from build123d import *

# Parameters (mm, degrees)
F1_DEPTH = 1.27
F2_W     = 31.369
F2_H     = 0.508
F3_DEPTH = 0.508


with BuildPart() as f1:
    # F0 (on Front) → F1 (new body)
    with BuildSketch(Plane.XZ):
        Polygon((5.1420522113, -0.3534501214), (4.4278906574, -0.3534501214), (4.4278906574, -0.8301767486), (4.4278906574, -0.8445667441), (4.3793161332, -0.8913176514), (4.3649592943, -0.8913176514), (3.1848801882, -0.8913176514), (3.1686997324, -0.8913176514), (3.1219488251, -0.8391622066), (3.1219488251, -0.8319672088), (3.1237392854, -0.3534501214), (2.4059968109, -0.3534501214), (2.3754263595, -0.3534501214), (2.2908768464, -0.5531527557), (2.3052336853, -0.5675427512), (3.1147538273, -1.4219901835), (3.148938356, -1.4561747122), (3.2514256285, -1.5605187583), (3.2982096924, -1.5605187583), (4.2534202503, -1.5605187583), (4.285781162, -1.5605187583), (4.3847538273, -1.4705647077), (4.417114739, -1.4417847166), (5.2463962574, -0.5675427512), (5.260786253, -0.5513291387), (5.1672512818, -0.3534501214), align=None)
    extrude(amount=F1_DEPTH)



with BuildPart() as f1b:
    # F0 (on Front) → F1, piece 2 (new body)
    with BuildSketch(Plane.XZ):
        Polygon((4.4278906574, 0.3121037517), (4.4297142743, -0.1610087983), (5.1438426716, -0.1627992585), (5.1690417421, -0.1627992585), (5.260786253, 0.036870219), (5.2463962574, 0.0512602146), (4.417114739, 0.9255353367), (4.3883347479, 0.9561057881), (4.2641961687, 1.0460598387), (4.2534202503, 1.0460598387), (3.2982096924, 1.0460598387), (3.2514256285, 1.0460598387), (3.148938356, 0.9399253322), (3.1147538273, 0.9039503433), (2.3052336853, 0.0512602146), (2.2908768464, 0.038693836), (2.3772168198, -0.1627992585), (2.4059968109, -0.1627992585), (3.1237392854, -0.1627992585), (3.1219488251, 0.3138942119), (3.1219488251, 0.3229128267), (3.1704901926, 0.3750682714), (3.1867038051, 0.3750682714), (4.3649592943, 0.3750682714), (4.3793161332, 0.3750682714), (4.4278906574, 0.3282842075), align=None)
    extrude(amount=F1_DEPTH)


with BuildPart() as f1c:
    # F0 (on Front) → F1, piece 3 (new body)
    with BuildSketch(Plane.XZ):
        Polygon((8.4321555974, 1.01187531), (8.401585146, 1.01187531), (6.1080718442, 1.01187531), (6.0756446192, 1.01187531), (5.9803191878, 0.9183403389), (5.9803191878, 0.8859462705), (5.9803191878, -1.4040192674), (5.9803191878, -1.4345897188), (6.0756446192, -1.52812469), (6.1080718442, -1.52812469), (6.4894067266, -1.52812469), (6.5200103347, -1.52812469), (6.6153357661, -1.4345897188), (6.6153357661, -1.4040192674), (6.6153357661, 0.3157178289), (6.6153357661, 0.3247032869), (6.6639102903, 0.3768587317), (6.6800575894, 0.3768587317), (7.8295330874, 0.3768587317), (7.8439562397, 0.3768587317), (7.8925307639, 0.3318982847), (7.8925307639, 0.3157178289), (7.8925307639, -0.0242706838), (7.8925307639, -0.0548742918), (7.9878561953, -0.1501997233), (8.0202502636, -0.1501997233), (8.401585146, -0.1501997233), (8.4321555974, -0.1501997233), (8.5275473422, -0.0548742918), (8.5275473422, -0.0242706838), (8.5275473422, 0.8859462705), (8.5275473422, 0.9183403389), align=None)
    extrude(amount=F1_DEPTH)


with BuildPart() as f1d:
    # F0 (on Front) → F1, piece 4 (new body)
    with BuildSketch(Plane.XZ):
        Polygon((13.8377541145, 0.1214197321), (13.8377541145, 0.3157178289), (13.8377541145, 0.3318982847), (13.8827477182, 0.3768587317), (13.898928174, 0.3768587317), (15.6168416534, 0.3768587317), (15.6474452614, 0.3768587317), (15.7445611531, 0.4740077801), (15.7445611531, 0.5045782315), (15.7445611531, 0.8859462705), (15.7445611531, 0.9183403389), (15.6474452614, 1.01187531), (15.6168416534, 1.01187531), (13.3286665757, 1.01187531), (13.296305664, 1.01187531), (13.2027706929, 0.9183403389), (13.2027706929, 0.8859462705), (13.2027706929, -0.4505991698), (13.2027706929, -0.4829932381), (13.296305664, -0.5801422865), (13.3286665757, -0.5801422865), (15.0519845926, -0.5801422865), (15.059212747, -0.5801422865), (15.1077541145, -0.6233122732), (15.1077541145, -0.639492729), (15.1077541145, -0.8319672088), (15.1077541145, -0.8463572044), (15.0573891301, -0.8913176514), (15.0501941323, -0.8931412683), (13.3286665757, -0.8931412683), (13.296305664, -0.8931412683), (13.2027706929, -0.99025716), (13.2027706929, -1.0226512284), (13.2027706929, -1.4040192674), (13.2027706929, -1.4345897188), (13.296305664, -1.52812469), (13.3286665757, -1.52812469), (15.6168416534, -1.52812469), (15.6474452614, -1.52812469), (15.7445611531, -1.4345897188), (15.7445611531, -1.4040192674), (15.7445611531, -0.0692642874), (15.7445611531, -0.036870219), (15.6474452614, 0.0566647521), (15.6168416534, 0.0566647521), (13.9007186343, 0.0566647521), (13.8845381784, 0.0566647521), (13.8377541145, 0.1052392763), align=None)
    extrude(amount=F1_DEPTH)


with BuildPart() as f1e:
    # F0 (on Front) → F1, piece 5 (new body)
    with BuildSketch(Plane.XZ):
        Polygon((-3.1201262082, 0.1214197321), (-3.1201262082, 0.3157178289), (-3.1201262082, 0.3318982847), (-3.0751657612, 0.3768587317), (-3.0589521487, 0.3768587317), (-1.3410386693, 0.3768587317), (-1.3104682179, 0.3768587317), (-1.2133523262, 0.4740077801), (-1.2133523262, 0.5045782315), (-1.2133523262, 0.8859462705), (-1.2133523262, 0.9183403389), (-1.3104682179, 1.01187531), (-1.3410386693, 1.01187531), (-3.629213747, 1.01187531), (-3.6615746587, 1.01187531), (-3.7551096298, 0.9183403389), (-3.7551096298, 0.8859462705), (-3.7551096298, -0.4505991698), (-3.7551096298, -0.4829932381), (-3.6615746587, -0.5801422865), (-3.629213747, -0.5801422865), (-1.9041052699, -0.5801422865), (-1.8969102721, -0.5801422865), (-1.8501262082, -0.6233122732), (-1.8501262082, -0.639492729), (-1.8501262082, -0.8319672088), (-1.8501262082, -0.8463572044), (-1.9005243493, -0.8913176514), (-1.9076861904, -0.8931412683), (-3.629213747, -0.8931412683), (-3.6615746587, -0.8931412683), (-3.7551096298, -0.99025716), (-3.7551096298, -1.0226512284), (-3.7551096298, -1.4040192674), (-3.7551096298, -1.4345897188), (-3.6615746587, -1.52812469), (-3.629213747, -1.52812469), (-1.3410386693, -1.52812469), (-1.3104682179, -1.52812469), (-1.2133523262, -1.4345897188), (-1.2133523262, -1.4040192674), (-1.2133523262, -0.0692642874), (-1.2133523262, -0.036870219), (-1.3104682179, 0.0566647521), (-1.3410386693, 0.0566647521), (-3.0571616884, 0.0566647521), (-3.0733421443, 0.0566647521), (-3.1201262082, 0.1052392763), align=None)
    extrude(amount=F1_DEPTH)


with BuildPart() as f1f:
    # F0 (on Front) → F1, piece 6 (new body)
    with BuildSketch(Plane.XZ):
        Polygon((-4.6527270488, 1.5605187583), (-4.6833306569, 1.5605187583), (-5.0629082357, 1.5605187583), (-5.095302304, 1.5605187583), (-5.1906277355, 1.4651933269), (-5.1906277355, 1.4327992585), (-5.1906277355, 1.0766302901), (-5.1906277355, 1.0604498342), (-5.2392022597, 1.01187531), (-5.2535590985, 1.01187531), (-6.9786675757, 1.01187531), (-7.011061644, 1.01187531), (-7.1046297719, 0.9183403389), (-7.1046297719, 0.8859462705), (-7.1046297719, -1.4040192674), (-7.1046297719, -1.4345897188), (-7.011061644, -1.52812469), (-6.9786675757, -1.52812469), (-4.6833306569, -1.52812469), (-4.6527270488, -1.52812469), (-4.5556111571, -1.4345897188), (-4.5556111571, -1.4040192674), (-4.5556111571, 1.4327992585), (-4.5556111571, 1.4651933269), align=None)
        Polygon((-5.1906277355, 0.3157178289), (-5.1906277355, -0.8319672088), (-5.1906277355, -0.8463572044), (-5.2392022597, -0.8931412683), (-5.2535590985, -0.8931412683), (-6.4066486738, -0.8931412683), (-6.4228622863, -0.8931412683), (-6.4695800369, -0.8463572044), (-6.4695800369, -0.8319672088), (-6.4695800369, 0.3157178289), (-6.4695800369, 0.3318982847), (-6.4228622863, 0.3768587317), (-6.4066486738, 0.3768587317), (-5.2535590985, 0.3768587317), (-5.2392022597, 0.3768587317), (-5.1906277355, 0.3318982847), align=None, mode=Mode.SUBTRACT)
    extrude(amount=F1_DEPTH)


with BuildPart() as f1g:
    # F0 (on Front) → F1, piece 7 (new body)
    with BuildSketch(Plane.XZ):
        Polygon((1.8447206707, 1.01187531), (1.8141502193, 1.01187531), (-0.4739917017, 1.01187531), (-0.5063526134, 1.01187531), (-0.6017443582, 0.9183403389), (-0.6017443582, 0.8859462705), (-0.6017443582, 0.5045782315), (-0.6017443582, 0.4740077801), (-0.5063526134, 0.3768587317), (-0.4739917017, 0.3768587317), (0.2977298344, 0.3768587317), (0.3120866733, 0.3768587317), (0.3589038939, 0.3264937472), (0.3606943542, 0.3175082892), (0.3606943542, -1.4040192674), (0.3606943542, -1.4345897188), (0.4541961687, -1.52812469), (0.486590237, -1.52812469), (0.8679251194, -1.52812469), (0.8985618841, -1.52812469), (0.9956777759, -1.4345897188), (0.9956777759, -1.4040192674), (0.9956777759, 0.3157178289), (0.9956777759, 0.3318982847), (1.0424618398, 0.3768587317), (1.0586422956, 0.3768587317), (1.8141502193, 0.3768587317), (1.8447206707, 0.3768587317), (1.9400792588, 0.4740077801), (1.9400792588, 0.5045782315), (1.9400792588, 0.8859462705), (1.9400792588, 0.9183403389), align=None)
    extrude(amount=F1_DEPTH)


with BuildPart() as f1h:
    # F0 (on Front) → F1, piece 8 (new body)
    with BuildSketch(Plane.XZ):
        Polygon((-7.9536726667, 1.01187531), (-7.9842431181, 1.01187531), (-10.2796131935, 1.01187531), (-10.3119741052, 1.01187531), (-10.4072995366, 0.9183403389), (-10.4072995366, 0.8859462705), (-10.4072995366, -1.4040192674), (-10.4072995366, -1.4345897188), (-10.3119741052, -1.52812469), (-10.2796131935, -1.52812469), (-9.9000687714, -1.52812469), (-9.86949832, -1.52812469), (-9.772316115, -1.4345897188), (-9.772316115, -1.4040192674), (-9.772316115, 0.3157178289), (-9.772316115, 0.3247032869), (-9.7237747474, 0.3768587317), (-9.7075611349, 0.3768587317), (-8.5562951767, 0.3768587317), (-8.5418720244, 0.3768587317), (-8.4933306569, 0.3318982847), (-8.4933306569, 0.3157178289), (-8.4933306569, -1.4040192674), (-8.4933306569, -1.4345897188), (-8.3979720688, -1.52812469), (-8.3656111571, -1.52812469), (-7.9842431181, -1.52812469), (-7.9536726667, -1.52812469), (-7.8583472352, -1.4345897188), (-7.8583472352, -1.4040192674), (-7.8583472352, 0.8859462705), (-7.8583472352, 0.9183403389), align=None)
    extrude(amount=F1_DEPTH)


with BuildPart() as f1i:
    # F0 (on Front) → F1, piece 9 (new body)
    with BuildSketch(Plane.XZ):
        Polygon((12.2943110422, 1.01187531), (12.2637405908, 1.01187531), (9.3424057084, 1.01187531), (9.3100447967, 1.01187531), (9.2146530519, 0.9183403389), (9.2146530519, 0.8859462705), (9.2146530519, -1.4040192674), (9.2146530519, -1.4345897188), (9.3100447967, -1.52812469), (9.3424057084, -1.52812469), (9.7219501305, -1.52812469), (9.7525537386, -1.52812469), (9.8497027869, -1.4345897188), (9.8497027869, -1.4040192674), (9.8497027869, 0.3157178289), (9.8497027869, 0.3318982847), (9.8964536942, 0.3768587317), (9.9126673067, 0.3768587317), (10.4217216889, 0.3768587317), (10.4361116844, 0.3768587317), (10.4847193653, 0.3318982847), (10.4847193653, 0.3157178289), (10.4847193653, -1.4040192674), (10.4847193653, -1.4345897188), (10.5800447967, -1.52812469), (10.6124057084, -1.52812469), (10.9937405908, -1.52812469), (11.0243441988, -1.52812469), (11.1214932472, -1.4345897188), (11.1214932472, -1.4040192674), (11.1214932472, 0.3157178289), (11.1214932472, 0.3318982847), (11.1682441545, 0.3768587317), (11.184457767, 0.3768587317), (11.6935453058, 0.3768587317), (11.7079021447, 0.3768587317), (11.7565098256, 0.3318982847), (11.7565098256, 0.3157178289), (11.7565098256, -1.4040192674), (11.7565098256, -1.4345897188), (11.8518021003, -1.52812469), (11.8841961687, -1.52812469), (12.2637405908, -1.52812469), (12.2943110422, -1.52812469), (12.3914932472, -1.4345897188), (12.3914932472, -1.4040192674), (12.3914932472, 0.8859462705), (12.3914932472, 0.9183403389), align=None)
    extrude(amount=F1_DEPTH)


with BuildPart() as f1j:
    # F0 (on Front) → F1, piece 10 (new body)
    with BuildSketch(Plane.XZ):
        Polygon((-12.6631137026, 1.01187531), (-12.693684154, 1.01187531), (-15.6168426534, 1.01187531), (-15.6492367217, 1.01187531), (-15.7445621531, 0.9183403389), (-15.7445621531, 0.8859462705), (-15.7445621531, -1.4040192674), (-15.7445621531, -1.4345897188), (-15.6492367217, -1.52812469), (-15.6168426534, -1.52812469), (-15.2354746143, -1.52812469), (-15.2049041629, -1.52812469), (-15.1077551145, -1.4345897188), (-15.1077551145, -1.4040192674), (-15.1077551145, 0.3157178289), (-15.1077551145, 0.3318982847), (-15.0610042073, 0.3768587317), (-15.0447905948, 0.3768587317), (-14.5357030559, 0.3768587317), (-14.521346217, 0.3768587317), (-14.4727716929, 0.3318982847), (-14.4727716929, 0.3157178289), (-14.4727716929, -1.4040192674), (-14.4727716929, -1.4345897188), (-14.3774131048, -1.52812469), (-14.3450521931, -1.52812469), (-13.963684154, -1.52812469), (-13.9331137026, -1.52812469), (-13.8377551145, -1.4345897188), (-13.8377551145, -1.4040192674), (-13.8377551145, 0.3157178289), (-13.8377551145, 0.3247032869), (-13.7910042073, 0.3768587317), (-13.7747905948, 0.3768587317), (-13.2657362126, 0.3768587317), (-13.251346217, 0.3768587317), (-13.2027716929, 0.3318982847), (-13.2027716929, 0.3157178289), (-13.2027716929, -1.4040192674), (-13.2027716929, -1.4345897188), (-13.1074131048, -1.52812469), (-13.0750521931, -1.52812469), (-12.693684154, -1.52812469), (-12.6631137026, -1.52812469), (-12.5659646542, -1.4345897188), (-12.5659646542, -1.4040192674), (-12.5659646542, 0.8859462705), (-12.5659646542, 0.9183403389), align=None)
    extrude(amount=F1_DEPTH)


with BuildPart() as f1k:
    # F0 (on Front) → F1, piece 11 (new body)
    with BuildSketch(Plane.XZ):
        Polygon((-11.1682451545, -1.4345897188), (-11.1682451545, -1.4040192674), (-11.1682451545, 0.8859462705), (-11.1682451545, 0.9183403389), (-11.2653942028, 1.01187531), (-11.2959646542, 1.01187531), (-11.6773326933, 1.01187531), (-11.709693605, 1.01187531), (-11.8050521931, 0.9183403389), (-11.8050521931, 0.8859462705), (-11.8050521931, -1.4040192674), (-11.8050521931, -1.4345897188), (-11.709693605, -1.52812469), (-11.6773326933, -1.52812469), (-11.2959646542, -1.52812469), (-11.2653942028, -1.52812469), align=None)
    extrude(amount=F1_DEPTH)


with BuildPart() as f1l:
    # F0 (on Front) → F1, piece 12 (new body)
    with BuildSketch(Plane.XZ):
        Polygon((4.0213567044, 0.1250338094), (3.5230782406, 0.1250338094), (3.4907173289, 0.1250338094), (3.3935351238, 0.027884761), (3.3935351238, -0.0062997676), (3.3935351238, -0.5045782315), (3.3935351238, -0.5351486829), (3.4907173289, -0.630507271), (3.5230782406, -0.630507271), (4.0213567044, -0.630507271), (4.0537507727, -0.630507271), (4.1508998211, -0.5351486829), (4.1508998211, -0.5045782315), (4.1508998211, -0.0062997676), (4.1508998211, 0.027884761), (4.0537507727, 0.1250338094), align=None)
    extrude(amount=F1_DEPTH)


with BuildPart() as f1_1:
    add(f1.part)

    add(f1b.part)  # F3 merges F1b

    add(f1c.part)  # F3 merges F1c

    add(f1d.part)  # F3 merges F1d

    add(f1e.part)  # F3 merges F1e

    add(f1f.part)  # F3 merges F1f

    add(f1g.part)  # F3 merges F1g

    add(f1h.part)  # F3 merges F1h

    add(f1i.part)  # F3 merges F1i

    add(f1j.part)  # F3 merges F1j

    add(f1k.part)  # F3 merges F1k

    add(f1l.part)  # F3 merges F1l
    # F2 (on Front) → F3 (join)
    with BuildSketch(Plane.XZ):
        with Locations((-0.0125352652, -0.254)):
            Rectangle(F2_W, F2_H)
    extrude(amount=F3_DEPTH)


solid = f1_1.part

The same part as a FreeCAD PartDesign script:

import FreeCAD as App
import Part
import Sketcher
Q = App.Units.Quantity


def add_polygon(sketch, points):
    """Adds a closed chain of lines whose ends are joined by coincident constraints."""
    first, n = sketch.GeometryCount, len(points)
    for a, b in zip(points, points[1:] + points[:1]):
        sketch.addGeometry(Part.LineSegment(App.Vector(*a, 0), App.Vector(*b, 0)), False)
    for i in range(n):
        sketch.addConstraint(Sketcher.Constraint("Coincident", first + i, 2, first + (i + 1) % n, 1))

doc = App.newDocument("Part")
body = doc.addObject("PartDesign::Body", "Body")

# Sketch on XZ plane
sketch1 = body.newObject("Sketcher::SketchObject", "Sketch")
sketch1.AttachmentSupport = (doc.getObject("XZ_Plane"), [""])
sketch1.MapMode = "FlatFace"
add_polygon(sketch1, [(4.428, -0.353), (4.428, -0.845), (4.379, -0.891), (3.169, -0.891), (3.122, -0.839), (3.122, -0.832), (3.124, -0.353), (2.375, -0.353), (2.291, -0.553), (2.305, -0.568), (3.115, -1.422), (3.149, -1.456), (3.251, -1.561), (4.286, -1.561), (4.385, -1.471), (4.417, -1.442), (5.246, -0.568), (5.261, -0.551), (5.167, -0.353)])  # lines 0-18
sketch1.addConstraint([
    Sketcher.Constraint("Vertical", 0),
    Sketcher.Constraint("Horizontal", 2),
    Sketcher.Constraint("Vertical", 4),
    Sketcher.Constraint("Horizontal", 6),
    Sketcher.Constraint("Horizontal", 12),
    Sketcher.Constraint("Horizontal", 18),
    Sketcher.Constraint("Horizontal", 8, 2, 15, 2),
    Sketcher.Constraint("Horizontal", 6, 2, 17, 2),
    Sketcher.Constraint("Angle", 10, Q("-45 deg")),
    Sketcher.Constraint("DistanceY", 11, 2, 3, 2, Q("0.0283999 in")),
    Sketcher.Constraint("DistanceX", 18, 2, 18, 1, 0.739361),
    Sketcher.Constraint("DistanceX", -1, 1, 2, 2, 3.1687),
    Sketcher.Constraint("DistanceY", 0, 2, 4, 2, 0.0126),
    Sketcher.Constraint("DistanceX", 5, 2, 10, 2, 0.025199),
    Sketcher.Constraint("DistanceY", 11, 2, 2, 2, 0.669201),
    Sketcher.Constraint("DistanceX", 1, 2, 14, 2, 0.037799),
    Sketcher.Constraint("Distance", 3, 0.070042),
    Sketcher.Constraint("Distance", 5, 0.47852),
    Sketcher.Constraint("Distance", 9, 1.177032),
    Sketcher.Constraint("Distance", 16, 0.021678),
    Sketcher.Constraint("Distance", 17, 0.218872),
    Sketcher.Constraint("DistanceX", 2, 2, 2, 1, 1.210616),
    Sketcher.Constraint("DistanceX", 6, 2, 6, 1, 0.748313),
    Sketcher.Constraint("DistanceX", 12, 1, 12, 2, 1.034356),
    Sketcher.Constraint("DistanceY", 4, 1, 4, 2, 0.007195),
    Sketcher.Constraint("DistanceX", -1, 1, 0, 2, 4.427891),
    Sketcher.Constraint("DistanceX", -1, 1, 5, 2, 3.123739),
    Sketcher.Constraint("DistanceY", 5, 2, -1, 1, 0.35345),
    Sketcher.Constraint("DistanceY", 9, 2, -1, 1, 1.42199),
    Sketcher.Constraint("DistanceX", -1, 1, 12, 2, 4.285781),
    Sketcher.Constraint("DistanceY", 16, 2, -1, 1, 0.551329),
    Sketcher.Constraint("DistanceX", 7, 2, 6, 2, 0.08455),
    Sketcher.Constraint("DistanceY", 3, 2, 7, 2, 0.286009),
    Sketcher.Constraint("DistanceY", 8, 2, 7, 2, 0.01439),
    Sketcher.Constraint("DistanceX", 9, 2, 11, 2, 0.136672),
    Sketcher.Constraint("DistanceX", 11, 2, 13, 2, 1.133328),
    Sketcher.Constraint("DistanceY", 13, 2, 10, 2, 0.01439),
    Sketcher.Constraint("DistanceY", 13, 2, 14, 2, 0.02878),
])
pad1 = body.newObject("PartDesign::Pad", "Pad")
pad1.Profile = sketch1
pad1.Length = Q("0.05 in")
body2 = doc.addObject("PartDesign::Body", "Body001")

# Sketch on XZ plane
sketch2 = body2.newObject("Sketcher::SketchObject", "Sketch001")
sketch2.AttachmentSupport = (doc.getObject("XZ_Plane001"), [""])
sketch2.MapMode = "FlatFace"
add_polygon(sketch2, [(4.428, 0.312), (4.43, -0.161), (5.144, -0.163), (5.169, -0.163), (5.261, 0.037), (5.246, 0.051), (4.417, 0.926), (4.388, 0.956), (4.264, 1.046), (3.251, 1.046), (3.149, 0.94), (3.115, 0.904), (2.305, 0.051), (2.291, 0.039), (2.377, -0.163), (3.124, -0.163), (3.122, 0.314), (3.122, 0.323), (3.17, 0.375), (4.379, 0.375), (4.428, 0.328)])  # lines 0-20
sketch2.addConstraint([
    Sketcher.Constraint("Horizontal", 2),
    Sketcher.Constraint("Horizontal", 8),
    Sketcher.Constraint("Horizontal", 14),
    Sketcher.Constraint("Vertical", 16),
    Sketcher.Constraint("Horizontal", 18),
    Sketcher.Constraint("Vertical", 20),
    Sketcher.Constraint("Horizontal", 4, 2, 11, 2),
    Sketcher.Constraint("Horizontal", 2, 2, 13, 2),
    Sketcher.Constraint("Angle", 4, Q("135 deg")),
    Sketcher.Constraint("DistanceX", 2, 1, 2, 2, 0.025199),
    Sketcher.Constraint("DistanceX", 8, 2, 8, 1, 1.012771),
    Sketcher.Constraint("DistanceY", 16, 1, 16, 2, 0.009019),
    Sketcher.Constraint("DistanceY", 20, 2, 20, 1, 0.01618),
    Sketcher.Constraint("DistanceY", 1, 2, -1, 1, 0.162799),
    Sketcher.Constraint("DistanceX", 5, 2, 0, 2, 0.0126),
    Sketcher.Constraint("DistanceX", 7, 2, 4, 2, 0.9822),
    Sketcher.Constraint("DistanceY", 4, 2, 7, 2, 0.9948),
    Sketcher.Constraint("DistanceX", 14, 2, 9, 2, 0.025199),
    Sketcher.Constraint("DistanceX", 18, 2, 0, 2, 0.050398),
    Sketcher.Constraint("Distance", 1, 0.714131),
    Sketcher.Constraint("Distance", 3, 0.219738),
    Sketcher.Constraint("Distance", 4, 0.020351),
    Sketcher.Constraint("Distance", 9, 0.14754),
    Sketcher.Constraint("Distance", 12, 0.01908),
    Sketcher.Constraint("Distance", 17, 0.071249),
    Sketcher.Constraint("Distance", 19, 0.067441),
    Sketcher.Constraint("DistanceX", 14, 1, 14, 2, 0.746522),
    Sketcher.Constraint("DistanceX", 18, 1, 18, 2, 1.208826),
    Sketcher.Constraint("DistanceY", 0, 2, -1, 1, 0.161009),
    Sketcher.Constraint("DistanceX", -1, 1, 2, 2, 5.169042),
    Sketcher.Constraint("DistanceY", -1, 1, 3, 2, 0.03687),
    Sketcher.Constraint("DistanceX", -1, 1, 9, 2, 3.148938),
    Sketcher.Constraint("DistanceY", -1, 1, 10, 2, 0.90395),
    Sketcher.Constraint("DistanceX", -1, 1, 15, 2, 3.121949),
    Sketcher.Constraint("DistanceY", -1, 1, 17, 2, 0.375068),
    Sketcher.Constraint("DistanceX", -1, 1, 19, 2, 4.427891),
    Sketcher.Constraint("DistanceX", 6, 2, 5, 2, 0.02878),
    Sketcher.Constraint("DistanceY", 5, 2, 6, 2, 0.03057),
    Sketcher.Constraint("DistanceY", 9, 2, 6, 2, 0.01618),
    Sketcher.Constraint("DistanceX", 10, 2, 8, 2, 0.136672),
    Sketcher.Constraint("DistanceX", 11, 2, 10, 2, 0.80952),
    Sketcher.Constraint("DistanceX", 12, 2, 9, 2, 0.858062),
])
pad2 = body2.newObject("PartDesign::Pad", "Pad001")
pad2.Profile = sketch2
pad2.Length = Q("0.05 in")
body3 = doc.addObject("PartDesign::Body", "Body002")

# Sketch on XZ plane
sketch3 = body3.newObject("Sketcher::SketchObject", "Sketch002")
sketch3.AttachmentSupport = (doc.getObject("XZ_Plane002"), [""])
sketch3.MapMode = "FlatFace"
add_polygon(sketch3, [(8.43, 1.01), (6.08, 1.01), (5.98, 0.92), (5.98, -1.43), (6.08, -1.53), (6.52, -1.53), (6.62, -1.43), (6.62, 0.32), (6.66, 0.38), (7.84, 0.38), (7.89, 0.33), (7.89, -0.05), (7.99, -0.15), (8.43, -0.15), (8.53, -0.05), (8.53, 0.92)])  # lines 0-15
sketch3.addConstraint([
    Sketcher.Constraint("Horizontal", 0),
    Sketcher.Constraint("Vertical", 2),
    Sketcher.Constraint("Horizontal", 4),
    Sketcher.Constraint("Vertical", 6),
    Sketcher.Constraint("Horizontal", 8),
    Sketcher.Constraint("Vertical", 10),
    Sketcher.Constraint("Horizontal", 12),
    Sketcher.Constraint("Vertical", 14),
    Sketcher.Constraint("Parallel", 1, 5),
    Sketcher.Constraint("Horizontal", 2, 2, 5, 2),
    Sketcher.Constraint("Horizontal", 10, 2, 13, 2),
    Sketcher.Constraint("Horizontal", 1, 2, 14, 2),
    Sketcher.Constraint("Vertical", 0, 2, 3, 2),
    Sketcher.Constraint("Vertical", 12, 2, 15, 2),
    Sketcher.Constraint("Equal", 1, 3),
    Sketcher.Constraint("Angle", 11, Q("-45 deg")),
    Sketcher.Constraint("DistanceY", 3, 2, 0, 2, Q("0.1 in")),
    Sketcher.Constraint("DistanceX", 12, 1, 12, 2, 0.444299),
    Sketcher.Constraint("DistanceX", 0, 2, 0, 1, 2.356511),
    Sketcher.Constraint("DistanceY", 2, 2, 2, 1, 2.35293),
    Sketcher.Constraint("DistanceY", -1, 1, 9, 2, 0.331898),
    Sketcher.Constraint("DistanceY", 11, 2, -1, 1, 0.1502),
    Sketcher.Constraint("DistanceX", 4, 2, 7, 2, 0.1439),
    Sketcher.Constraint("DistanceX", 8, 2, 11, 2, 0.1439),
    Sketcher.Constraint("Distance", 1, 0.13355),
    Sketcher.Constraint("Distance", 7, 0.071272),
    Sketcher.Constraint("Distance", 9, 0.066189),
    Sketcher.Constraint("Distance", 11, 0.134811),
    Sketcher.Constraint("DistanceX", 4, 1, 4, 2, 0.444366),
    Sketcher.Constraint("DistanceY", 6, 1, 6, 2, 1.759293),
    Sketcher.Constraint("DistanceX", -1, 1, 1, 2, 5.980319),
    Sketcher.Constraint("DistanceX", 12, 2, 13, 2, 0.095392),
])
pad3 = body3.newObject("PartDesign::Pad", "Pad002")
pad3.Profile = sketch3
pad3.Length = Q("0.05 in")
body4 = doc.addObject("PartDesign::Body", "Body003")

# Sketch on XZ plane
sketch4 = body4.newObject("Sketcher::SketchObject", "Sketch003")
sketch4.AttachmentSupport = (doc.getObject("XZ_Plane003"), [""])
sketch4.MapMode = "FlatFace"
add_polygon(sketch4, [(13.838, 0.332), (13.883, 0.377), (15.647, 0.377), (15.745, 0.474), (15.745, 0.918), (15.647, 1.012), (13.296, 1.012), (13.203, 0.918), (13.203, -0.483), (13.296, -0.58), (15.059, -0.58), (15.108, -0.623), (15.108, -0.846), (15.057, -0.891), (15.05, -0.893), (13.296, -0.893), (13.203, -0.99), (13.203, -1.435), (13.296, -1.528), (15.647, -1.528), (15.745, -1.435), (15.745, -0.037), (15.647, 0.057), (13.885, 0.057), (13.838, 0.105)])  # lines 0-24
sketch4.addConstraint([
    Sketcher.Constraint("Horizontal", 1),
    Sketcher.Constraint("Vertical", 3),
    Sketcher.Constraint("Horizontal", 5),
    Sketcher.Constraint("Vertical", 7),
    Sketcher.Constraint("Horizontal", 9),
    Sketcher.Constraint("Vertical", 11),
    Sketcher.Constraint("Horizontal", 14),
    Sketcher.Constraint("Vertical", 16),
    Sketcher.Constraint("Horizontal", 18),
    Sketcher.Constraint("Vertical", 20),
    Sketcher.Constraint("Horizontal", 22),
    Sketcher.Constraint("Vertical", 24),
    Sketcher.Constraint("Perpendicular", 4, 15),
    Sketcher.Constraint("Perpendicular", 6, 17),
    Sketcher.Constraint("Perpendicular", 15, 21),
    Sketcher.Constraint("Horizontal", 3, 2, 6, 2),
    Sketcher.Constraint("Horizontal", 16, 2, 19, 2),
    Sketcher.Constraint("Vertical", 1, 2, 4, 2),
    Sketcher.Constraint("Vertical", 5, 2, 8, 2),
    Sketcher.Constraint("Vertical", 8, 2, 14, 2),
    Sketcher.Constraint("Vertical", 7, 2, 15, 2),
    Sketcher.Constraint("Vertical", 14, 2, 17, 2),
    Sketcher.Constraint("Vertical", 4, 2, 18, 2),
    Sketcher.Constraint("Vertical", 3, 2, 19, 2),
    Sketcher.Constraint("Vertical", 18, 2, 21, 2),
    Sketcher.Constraint("Equal", 9, 22),
    Sketcher.Constraint("Equal", 3, 16),
    Sketcher.Constraint("Equal", 4, 15),
    Sketcher.Constraint("DistanceY", 13, 2, 1, 2, Q("0.05 in")),
    Sketcher.Constraint("DistanceX", 5, 2, 5, 1, 2.35114),
    Sketcher.Constraint("DistanceX", 14, 2, 14, 1, 1.753888),
    Sketcher.Constraint("DistanceY", 20, 1, 20, 2, 1.39772),
    Sketcher.Constraint("DistanceY", 24, 1, 24, 2, 0.226659),
    Sketcher.Constraint("DistanceY", -1, 1, 24, 2, 0.331898),
    Sketcher.Constraint("DistanceY", 7, 2, 2, 2, 0.957001),
    Sketcher.Constraint("DistanceY", 8, 2, 0, 2, 0.957001),
    Sketcher.Constraint("DistanceY", 23, 2, 6, 2, 0.813101),
    Sketcher.Constraint("Distance", 6, 0.132278),
    Sketcher.Constraint("Distance", 8, 0.134858),
    Sketcher.Constraint("Distance", 10, 0.064961),
    Sketcher.Constraint("Distance", 23, 0.067441),
    Sketcher.Constraint("DistanceX", 1, 1, 1, 2, 1.764698),
    Sketcher.Constraint("DistanceX", 9, 1, 9, 2, 1.762907),
    Sketcher.Constraint("DistanceY", 3, 1, 3, 2, 0.444333),
    Sketcher.Constraint("DistanceY", 11, 2, 11, 1, 0.223045),
    Sketcher.Constraint("DistanceX", -1, 1, 2, 2, 15.744561),
    Sketcher.Constraint("DistanceX", -1, 1, 6, 2, 13.202771),
    Sketcher.Constraint("DistanceX", -1, 1, 12, 2, 15.057389),
    Sketcher.Constraint("DistanceX", 9, 2, 10, 2, 0.048541),
    Sketcher.Constraint("DistanceY", 12, 2, 11, 2, 0.04496),
])
pad4 = body4.newObject("PartDesign::Pad", "Pad003")
pad4.Profile = sketch4
pad4.Length = Q("0.05 in")
body5 = doc.addObject("PartDesign::Body", "Body004")

# Sketch on XZ plane
sketch5 = body5.newObject("Sketcher::SketchObject", "Sketch004")
sketch5.AttachmentSupport = (doc.getObject("XZ_Plane004"), [""])
sketch5.MapMode = "FlatFace"
add_polygon(sketch5, [(-3.12, 0.332), (-3.075, 0.377), (-1.31, 0.377), (-1.213, 0.474), (-1.213, 0.918), (-1.31, 1.012), (-3.662, 1.012), (-3.755, 0.918), (-3.755, -0.483), (-3.662, -0.58), (-1.897, -0.58), (-1.85, -0.623), (-1.85, -0.846), (-1.901, -0.891), (-1.908, -0.893), (-3.662, -0.893), (-3.755, -0.99), (-3.755, -1.435), (-3.662, -1.528), (-1.31, -1.528), (-1.213, -1.435), (-1.213, -0.037), (-1.31, 0.057), (-3.073, 0.057), (-3.12, 0.105)])  # lines 0-24
sketch5.addConstraint([
    Sketcher.Constraint("Horizontal", 1),
    Sketcher.Constraint("Vertical", 3),
    Sketcher.Constraint("Horizontal", 5),
    Sketcher.Constraint("Vertical", 7),
    Sketcher.Constraint("Horizontal", 9),
    Sketcher.Constraint("Vertical", 11),
    Sketcher.Constraint("Horizontal", 14),
    Sketcher.Constraint("Vertical", 16),
    Sketcher.Constraint("Horizontal", 18),
    Sketcher.Constraint("Vertical", 20),
    Sketcher.Constraint("Horizontal", 22),
    Sketcher.Constraint("Vertical", 24),
    Sketcher.Constraint("Parallel", 0, 6),
    Sketcher.Constraint("Perpendicular", 4, 15),
    Sketcher.Constraint("Perpendicular", 6, 17),
    Sketcher.Constraint("Perpendicular", 15, 21),
    Sketcher.Constraint("Horizontal", 3, 2, 6, 2),
    Sketcher.Constraint("Horizontal", 16, 2, 19, 2),
    Sketcher.Constraint("Vertical", 1, 2, 4, 2),
    Sketcher.Constraint("Vertical", 5, 2, 8, 2),
    Sketcher.Constraint("Vertical", 8, 2, 14, 2),
    Sketcher.Constraint("Vertical", 7, 2, 15, 2),
    Sketcher.Constraint("Vertical", 14, 2, 17, 2),
    Sketcher.Constraint("Vertical", 4, 2, 18, 2),
    Sketcher.Constraint("Vertical", 3, 2, 19, 2),
    Sketcher.Constraint("Vertical", 18, 2, 21, 2),
    Sketcher.Constraint("Equal", 3, 16),
    Sketcher.Constraint("Equal", 4, 15),
    Sketcher.Constraint("DistanceY", 13, 2, 1, 2, Q("0.05 in")),
    Sketcher.Constraint("DistanceX", 14, 2, 14, 1, 1.753888),
    Sketcher.Constraint("DistanceY", 20, 1, 20, 2, 1.39772),
    Sketcher.Constraint("DistanceY", 24, 1, 24, 2, 0.226659),
    Sketcher.Constraint("DistanceY", -1, 1, 24, 2, 0.331898),
    Sketcher.Constraint("DistanceY", 7, 2, 2, 2, 0.957001),
    Sketcher.Constraint("DistanceY", 8, 2, 0, 2, 0.957001),
    Sketcher.Constraint("DistanceX", 12, 2, 11, 2, 0.050398),
    Sketcher.Constraint("DistanceY", 23, 2, 6, 2, 0.813101),
    Sketcher.Constraint("Distance", 6, 0.132278),
    Sketcher.Constraint("Distance", 8, 0.134858),
    Sketcher.Constraint("Distance", 10, 0.063658),
    Sketcher.Constraint("Distance", 12, 0.067538),
    Sketcher.Constraint("Distance", 13, 0.00739),
    Sketcher.Constraint("Distance", 23, 0.067441),
    Sketcher.Constraint("DistanceX", 1, 1, 1, 2, 1.764698),
    Sketcher.Constraint("DistanceX", 5, 2, 5, 1, 2.351106),
    Sketcher.Constraint("DistanceX", 9, 1, 9, 2, 1.764664),
    Sketcher.Constraint("DistanceX", 22, 2, 22, 1, 1.762874),
    Sketcher.Constraint("DistanceY", 3, 1, 3, 2, 0.444333),
    Sketcher.Constraint("DistanceY", 11, 2, 11, 1, 0.223045),
    Sketcher.Constraint("DistanceX", 1, 2, -1, 1, 1.310468),
])
pad5 = body5.newObject("PartDesign::Pad", "Pad004")
pad5.Profile = sketch5
pad5.Length = Q("0.05 in")
body6 = doc.addObject("PartDesign::Body", "Body005")

# Sketch on XZ plane
sketch6 = body6.newObject("Sketcher::SketchObject", "Sketch005")
sketch6.AttachmentSupport = (doc.getObject("XZ_Plane005"), [""])
sketch6.MapMode = "FlatFace"
add_polygon(sketch6, [(-4.65, 1.56), (-5.1, 1.56), (-5.19, 1.47), (-5.19, 1.06), (-5.24, 1.01), (-7.01, 1.01), (-7.1, 0.92), (-7.1, -1.43), (-7.01, -1.53), (-4.65, -1.53), (-4.56, -1.43), (-4.56, 1.47)])  # lines 0-11
add_polygon(sketch6, [(-5.19, 0.33), (-5.19, -0.85), (-5.24, -0.89), (-6.42, -0.89), (-6.47, -0.85), (-6.47, 0.33), (-6.42, 0.38), (-5.24, 0.38)])  # lines 12-19
sketch6.addConstraint([
    Sketcher.Constraint("Horizontal", 0),
    Sketcher.Constraint("Vertical", 2),
    Sketcher.Constraint("Horizontal", 4),
    Sketcher.Constraint("Vertical", 6),
    Sketcher.Constraint("Horizontal", 8),
    Sketcher.Constraint("Vertical", 10),
    Sketcher.Constraint("Vertical", 12),
    Sketcher.Constraint("Horizontal", 14),
    Sketcher.Constraint("Vertical", 16),
    Sketcher.Constraint("Horizontal", 18),
    Sketcher.Constraint("Parallel", 1, 3),
    Sketcher.Constraint("Horizontal", 6, 2, 9, 2),
    Sketcher.Constraint("Horizontal", 1, 2, 10, 2),
    Sketcher.Constraint("Horizontal", 12, 2, 15, 2),
    Sketcher.Constraint("Horizontal", 16, 2, 19, 2),
    Sketcher.Constraint("Vertical", 4, 2, 7, 2),
    Sketcher.Constraint("Vertical", 8, 2, 11, 2),
    Sketcher.Constraint("Vertical", 2, 2, 12, 2),
    Sketcher.Constraint("Vertical", 3, 2, 13, 2),
    Sketcher.Constraint("Vertical", 14, 2, 17, 2),
    Sketcher.Constraint("Vertical", 13, 2, 18, 2),
    Sketcher.Constraint("Equal", 5, 7),
    Sketcher.Constraint("Angle", 1, Q("-135 deg")),
    Sketcher.Constraint("DistanceY", 7, 2, 4, 2, Q("0.1 in")),
    Sketcher.Constraint("DistanceY", 14, 2, 17, 2, Q("0.05 in")),
    Sketcher.Constraint("DistanceY", 3, 2, 0, 2, Q("0.0216001 in")),
    Sketcher.Constraint("Distance", 5, 0.132302),
    Sketcher.Constraint("DistanceX", 4, 2, 4, 1, 1.771859),
    Sketcher.Constraint("DistanceX", 14, 2, 14, 1, 1.18366),
    Sketcher.Constraint("DistanceY", 6, 2, 6, 1, 2.35293),
    Sketcher.Constraint("DistanceY", -1, 1, 16, 2, 0.331898),
    Sketcher.Constraint("DistanceX", 3, 2, 0, 2, 0.1439),
    Sketcher.Constraint("DistanceX", 2, 2, 8, 2, 0.537901),
    Sketcher.Constraint("Distance", 1, 0.134811),
    Sketcher.Constraint("Distance", 13, 0.067441),
    Sketcher.Constraint("Distance", 17, 0.064838),
    Sketcher.Constraint("Distance", 19, 0.066189),
    Sketcher.Constraint("DistanceY", -1, 1, 0, 2, 1.560519),
    Sketcher.Constraint("DistanceX", 4, 2, -1, 1, 7.011062),
    Sketcher.Constraint("DistanceX", 9, 2, -1, 1, 4.555611),
])
pad6 = body6.newObject("PartDesign::Pad", "Pad005")
pad6.Profile = sketch6
pad6.Length = Q("0.05 in")
body7 = doc.addObject("PartDesign::Body", "Body006")

# Sketch on XZ plane
sketch7 = body7.newObject("Sketcher::SketchObject", "Sketch006")
sketch7.AttachmentSupport = (doc.getObject("XZ_Plane006"), [""])
sketch7.MapMode = "FlatFace"
add_polygon(sketch7, [(1.845, 1.012), (-0.506, 1.012), (-0.602, 0.918), (-0.602, 0.474), (-0.506, 0.377), (0.312, 0.377), (0.359, 0.326), (0.361, 0.318), (0.361, -1.435), (0.454, -1.528), (0.899, -1.528), (0.996, -1.435), (0.996, 0.332), (1.042, 0.377), (1.845, 0.377), (1.94, 0.474), (1.94, 0.918)])  # lines 0-16
sketch7.addConstraint([
    Sketcher.Constraint("Horizontal", 0),
    Sketcher.Constraint("Vertical", 2),
    Sketcher.Constraint("Horizontal", 4),
    Sketcher.Constraint("Vertical", 7),
    Sketcher.Constraint("Horizontal", 9),
    Sketcher.Constraint("Vertical", 11),
    Sketcher.Constraint("Horizontal", 13),
    Sketcher.Constraint("Vertical", 15),
    Sketcher.Constraint("Horizontal", 7, 2, 10, 2),
    Sketcher.Constraint("Horizontal", 4, 2, 12, 2),
    Sketcher.Constraint("Horizontal", 2, 2, 14, 2),
    Sketcher.Constraint("Horizontal", 1, 2, 15, 2),
    Sketcher.Constraint("Vertical", 0, 2, 3, 2),
    Sketcher.Constraint("Vertical", 13, 2, 16, 2),
    Sketcher.Constraint("DistanceY", 7, 2, 7, 1, 1.752098),
    Sketcher.Constraint("DistanceX", -1, 1, 10, 2, Q("0.0391999 in")),
    Sketcher.Constraint("DistanceX", 4, 1, 4, 2, 0.818439),
    Sketcher.Constraint("DistanceX", 13, 1, 13, 2, 0.802259),
    Sketcher.Constraint("DistanceY", 11, 1, 11, 2, 1.766488),
    Sketcher.Constraint("DistanceY", -1, 1, 11, 2, 0.331898),
    Sketcher.Constraint("DistanceY", 6, 2, 2, 2, 0.156499),
    Sketcher.Constraint("DistanceX", 7, 2, 8, 2, 0.093502),
    Sketcher.Constraint("DistanceX", 11, 2, 14, 2, 0.944401),
    Sketcher.Constraint("Distance", 14, 0.136129),
    Sketcher.Constraint("DistanceX", 0, 2, 0, 1, 2.351073),
    Sketcher.Constraint("DistanceX", 9, 1, 9, 2, 0.444366),
    Sketcher.Constraint("DistanceY", 2, 2, 2, 1, 0.444333),
    Sketcher.Constraint("DistanceY", -1, 1, 3, 2, 0.376859),
    Sketcher.Constraint("DistanceX", -1, 1, 9, 2, 0.898562),
    Sketcher.Constraint("DistanceX", 1, 2, 0, 2, 0.095392),
    Sketcher.Constraint("DistanceX", 2, 2, 5, 2, 0.960648),
    Sketcher.Constraint("DistanceY", 5, 2, 0, 2, 0.685382),
    Sketcher.Constraint("DistanceY", 8, 2, 5, 2, 1.854618),
    Sketcher.Constraint("Distance", 1, 0.133598),
])
pad7 = body7.newObject("PartDesign::Pad", "Pad006")
pad7.Profile = sketch7
pad7.Length = Q("0.05 in")
body8 = doc.addObject("PartDesign::Body", "Body007")

# Sketch on XZ plane
sketch8 = body8.newObject("Sketcher::SketchObject", "Sketch007")
sketch8.AttachmentSupport = (doc.getObject("XZ_Plane007"), [""])
sketch8.MapMode = "FlatFace"
add_polygon(sketch8, [(-7.95, 1.01), (-10.31, 1.01), (-10.41, 0.92), (-10.41, -1.43), (-10.31, -1.53), (-9.87, -1.53), (-9.77, -1.43), (-9.77, 0.32), (-9.72, 0.38), (-8.54, 0.38), (-8.49, 0.33), (-8.49, -1.43), (-8.4, -1.53), (-7.95, -1.53), (-7.86, -1.43), (-7.86, 0.92)])  # lines 0-15
sketch8.addConstraint([
    Sketcher.Constraint("Horizontal", 0),
    Sketcher.Constraint("Vertical", 2),
    Sketcher.Constraint("Horizontal", 4),
    Sketcher.Constraint("Vertical", 6),
    Sketcher.Constraint("Horizontal", 8),
    Sketcher.Constraint("Vertical", 10),
    Sketcher.Constraint("Horizontal", 12),
    Sketcher.Constraint("Vertical", 14),
    Sketcher.Constraint("Parallel", 1, 13),
    Sketcher.Constraint("Parallel", 3, 15),
    Sketcher.Constraint("Horizontal", 2, 2, 5, 2),
    Sketcher.Constraint("Horizontal", 5, 2, 10, 2),
    Sketcher.Constraint("Horizontal", 4, 2, 11, 2),
    Sketcher.Constraint("Horizontal", 10, 2, 13, 2),
    Sketcher.Constraint("Horizontal", 1, 2, 14, 2),
    Sketcher.Constraint("Vertical", 0, 2, 3, 2),
    Sketcher.Constraint("Vertical", 12, 2, 15, 2),
    Sketcher.Constraint("DistanceY", 3, 2, 0, 2, Q("0.1 in")),
    Sketcher.Constraint("DistanceX", 0, 2, 0, 1, 2.358301),
    Sketcher.Constraint("DistanceX", 12, 1, 12, 2, 0.444299),
    Sketcher.Constraint("DistanceX", 0, 2, 9, 2, Q("0.0716001 in")),
    Sketcher.Constraint("DistanceX", 5, 2, 12, 2, Q("0.0716001 in")),
    Sketcher.Constraint("DistanceY", 2, 2, 2, 1, 2.35293),
    Sketcher.Constraint("DistanceY", 10, 2, 10, 1, 1.766488),
    Sketcher.Constraint("DistanceX", 1, 2, -1, 1, 10.4073),
    Sketcher.Constraint("DistanceX", 4, 2, -1, 1, 9.869498),
    Sketcher.Constraint("DistanceY", -1, 1, 9, 2, 0.331898),
    Sketcher.Constraint("DistanceX", 0, 2, 7, 2, 0.588199),
    Sketcher.Constraint("DistanceX", 8, 2, 11, 2, 0.1439),
    Sketcher.Constraint("Distance", 1, 0.13355),
    Sketcher.Constraint("Distance", 7, 0.071249),
    Sketcher.Constraint("DistanceY", 6, 1, 6, 2, 1.759293),
])
pad8 = body8.newObject("PartDesign::Pad", "Pad007")
pad8.Profile = sketch8
pad8.Length = Q("0.05 in")
body9 = doc.addObject("PartDesign::Body", "Body008")

# Sketch on XZ plane
sketch9 = body9.newObject("Sketcher::SketchObject", "Sketch008")
sketch9.AttachmentSupport = (doc.getObject("XZ_Plane008"), [""])
sketch9.MapMode = "FlatFace"
add_polygon(sketch9, [(12.29, 1.01), (9.31, 1.01), (9.21, 0.92), (9.21, -1.43), (9.31, -1.53), (9.75, -1.53), (9.85, -1.43), (9.85, 0.33), (9.9, 0.38), (10.44, 0.38), (10.48, 0.33), (10.48, -1.43), (10.58, -1.53), (11.02, -1.53), (11.12, -1.43), (11.12, 0.33), (11.17, 0.38), (11.71, 0.38), (11.76, 0.33), (11.76, -1.43), (11.85, -1.53), (12.29, -1.53), (12.39, -1.43), (12.39, 0.92)])  # lines 0-23
sketch9.addConstraint([
    Sketcher.Constraint("Horizontal", 0),
    Sketcher.Constraint("Vertical", 2),
    Sketcher.Constraint("Horizontal", 4),
    Sketcher.Constraint("Vertical", 6),
    Sketcher.Constraint("Horizontal", 8),
    Sketcher.Constraint("Vertical", 10),
    Sketcher.Constraint("Horizontal", 12),
    Sketcher.Constraint("Vertical", 14),
    Sketcher.Constraint("Horizontal", 16),
    Sketcher.Constraint("Vertical", 18),
    Sketcher.Constraint("Horizontal", 20),
    Sketcher.Constraint("Vertical", 22),
    Sketcher.Constraint("Parallel", 5, 13),
    Sketcher.Constraint("Parallel", 7, 15),
    Sketcher.Constraint("Parallel", 9, 17),
    Sketcher.Constraint("Horizontal", 2, 2, 5, 2),
    Sketcher.Constraint("Horizontal", 6, 2, 9, 2),
    Sketcher.Constraint("Horizontal", 5, 2, 10, 2),
    Sketcher.Constraint("Horizontal", 4, 2, 11, 2),
    Sketcher.Constraint("Horizontal", 10, 2, 13, 2),
    Sketcher.Constraint("Horizontal", 9, 2, 14, 2),
    Sketcher.Constraint("Horizontal", 8, 2, 15, 2),
    Sketcher.Constraint("Horizontal", 14, 2, 17, 2),
    Sketcher.Constraint("Horizontal", 13, 2, 18, 2),
    Sketcher.Constraint("Horizontal", 12, 2, 19, 2),
    Sketcher.Constraint("Horizontal", 18, 2, 21, 2),
    Sketcher.Constraint("Horizontal", 1, 2, 22, 2),
    Sketcher.Constraint("Vertical", 0, 2, 3, 2),
    Sketcher.Constraint("Vertical", 20, 2, 23, 2),
    Sketcher.Constraint("Equal", 8, 16),
    Sketcher.Constraint("Equal", 4, 20),
    Sketcher.Constraint("Equal", 1, 3),
    Sketcher.Constraint("DistanceY", 3, 2, 0, 2, Q("0.1 in")),
    Sketcher.Constraint("DistanceX", 3, 2, 11, 2, Q("0.05 in")),
    Sketcher.Constraint("DistanceX", 13, 2, 21, 2, Q("0.05 in")),
    Sketcher.Constraint("DistanceX", 12, 1, 12, 2, 0.444299),
    Sketcher.Constraint("DistanceX", 4, 1, 4, 2, 0.442509),
    Sketcher.Constraint("DistanceY", 2, 2, 2, 1, 2.35293),
    Sketcher.Constraint("DistanceY", 6, 1, 6, 2, 1.766488),
    Sketcher.Constraint("DistanceY", -1, 1, 6, 2, 0.331898),
    Sketcher.Constraint("DistanceX", 2, 2, 4, 2, 0.537901),
    Sketcher.Constraint("DistanceX", 1, 2, 7, 2, 0.681801),
    Sketcher.Constraint("DistanceX", 8, 2, 17, 2, 1.320398),
    Sketcher.Constraint("DistanceX", 18, 2, 20, 2, 0.537801),
    Sketcher.Constraint("Distance", 5, 0.134858),
    Sketcher.Constraint("Distance", 11, 0.13355),
    Sketcher.Constraint("DistanceY", -1, 1, 7, 2, 0.376859),
    Sketcher.Constraint("DistanceX", -1, 1, 8, 2, 10.436112),
])
pad9 = body9.newObject("PartDesign::Pad", "Pad008")
pad9.Profile = sketch9
pad9.Length = Q("0.05 in")
body10 = doc.addObject("PartDesign::Body", "Body009")

# Sketch on XZ plane
sketch10 = body10.newObject("Sketcher::SketchObject", "Sketch009")
sketch10.AttachmentSupport = (doc.getObject("XZ_Plane009"), [""])
sketch10.MapMode = "FlatFace"
add_polygon(sketch10, [(-12.66, 1.01), (-15.65, 1.01), (-15.74, 0.92), (-15.74, -1.43), (-15.65, -1.53), (-15.2, -1.53), (-15.11, -1.43), (-15.11, 0.33), (-15.06, 0.38), (-14.52, 0.38), (-14.47, 0.33), (-14.47, -1.43), (-14.38, -1.53), (-13.93, -1.53), (-13.84, -1.43), (-13.84, 0.32), (-13.79, 0.38), (-13.25, 0.38), (-13.2, 0.33), (-13.2, -1.43), (-13.11, -1.53), (-12.66, -1.53), (-12.57, -1.43), (-12.57, 0.92)])  # lines 0-23
sketch10.addConstraint([
    Sketcher.Constraint("Horizontal", 0),
    Sketcher.Constraint("Vertical", 2),
    Sketcher.Constraint("Horizontal", 4),
    Sketcher.Constraint("Vertical", 6),
    Sketcher.Constraint("Horizontal", 8),
    Sketcher.Constraint("Vertical", 10),
    Sketcher.Constraint("Horizontal", 12),
    Sketcher.Constraint("Vertical", 14),
    Sketcher.Constraint("Horizontal", 16),
    Sketcher.Constraint("Vertical", 18),
    Sketcher.Constraint("Horizontal", 20),
    Sketcher.Constraint("Vertical", 22),
    Sketcher.Constraint("Parallel", 9, 17),
    Sketcher.Constraint("Parallel", 11, 19),
    Sketcher.Constraint("Parallel", 5, 21),
    Sketcher.Constraint("Horizontal", 2, 2, 5, 2),
    Sketcher.Constraint("Horizontal", 6, 2, 9, 2),
    Sketcher.Constraint("Horizontal", 5, 2, 10, 2),
    Sketcher.Constraint("Horizontal", 4, 2, 11, 2),
    Sketcher.Constraint("Horizontal", 10, 2, 13, 2),
    Sketcher.Constraint("Horizontal", 8, 2, 15, 2),
    Sketcher.Constraint("Horizontal", 9, 2, 17, 2),
    Sketcher.Constraint("Horizontal", 13, 2, 18, 2),
    Sketcher.Constraint("Horizontal", 12, 2, 19, 2),
    Sketcher.Constraint("Horizontal", 18, 2, 21, 2),
    Sketcher.Constraint("Horizontal", 1, 2, 22, 2),
    Sketcher.Constraint("Vertical", 0, 2, 3, 2),
    Sketcher.Constraint("Vertical", 20, 2, 23, 2),
    Sketcher.Constraint("Equal", 8, 16),
    Sketcher.Constraint("Equal", 12, 20),
    Sketcher.Constraint("Equal", 1, 3),
    Sketcher.Constraint("Equal", 11, 13),
    Sketcher.Constraint("DistanceY", 3, 2, 0, 2, Q("0.1 in")),
    Sketcher.Constraint("DistanceX", 5, 2, 13, 2, Q("0.05 in")),
    Sketcher.Constraint("DistanceX", 7, 2, 15, 2, Q("0.05 in")),
    Sketcher.Constraint("DistanceX", 12, 1, 12, 2, 0.444299),
    Sketcher.Constraint("DistanceY", 2, 2, 2, 1, 2.35293),
    Sketcher.Constraint("DistanceY", 6, 1, 6, 2, 1.766488),
    Sketcher.Constraint("DistanceY", -1, 1, 6, 2, 0.331898),
    Sketcher.Constraint("DistanceX", 4, 2, 7, 2, 0.1439),
    Sketcher.Constraint("Distance", 1, 0.13355),
    Sketcher.Constraint("Distance", 5, 0.134858),
    Sketcher.Constraint("Distance", 9, 0.066189),
    Sketcher.Constraint("Distance", 15, 0.070042),
    Sketcher.Constraint("DistanceX", 0, 2, 0, 1, 2.986123),
    Sketcher.Constraint("DistanceX", 4, 1, 4, 2, 0.444333),
    Sketcher.Constraint("DistanceX", 8, 1, 8, 2, 0.539658),
    Sketcher.Constraint("DistanceX", 9, 2, -1, 1, 14.472772),
])
pad10 = body10.newObject("PartDesign::Pad", "Pad009")
pad10.Profile = sketch10
pad10.Length = Q("0.05 in")
body11 = doc.addObject("PartDesign::Body", "Body010")

# Sketch on XZ plane
sketch11 = body11.newObject("Sketcher::SketchObject", "Sketch010")
sketch11.AttachmentSupport = (doc.getObject("XZ_Plane010"), [""])
sketch11.MapMode = "FlatFace"
add_polygon(sketch11, [(-11.17, -1.43), (-11.17, 0.92), (-11.27, 1.01), (-11.71, 1.01), (-11.81, 0.92), (-11.81, -1.43), (-11.71, -1.53), (-11.27, -1.53)])  # lines 0-7
sketch11.addConstraint([
    Sketcher.Constraint("Vertical", 0),
    Sketcher.Constraint("Horizontal", 2),
    Sketcher.Constraint("Vertical", 4),
    Sketcher.Constraint("Horizontal", 6),
    Sketcher.Constraint("Horizontal", 0, 2, 3, 2),
    Sketcher.Constraint("Horizontal", 4, 2, 7, 2),
    Sketcher.Constraint("Vertical", 2, 2, 5, 2),
    Sketcher.Constraint("Vertical", 1, 2, 6, 2),
    Sketcher.Constraint("Equal", 3, 5),
    Sketcher.Constraint("DistanceY", 5, 2, 2, 2, Q("0.1 in")),
    Sketcher.Constraint("DistanceX", 2, 2, 2, 1, 0.444299),
    Sketcher.Constraint("DistanceY", 0, 1, 0, 2, 2.35293),
    Sketcher.Constraint("Distance", 1, 0.134858),
    Sketcher.Constraint("DistanceY", -1, 1, 0, 2, 0.91834),
    Sketcher.Constraint("DistanceX", 3, 2, 2, 2, 0.095359),
    Sketcher.Constraint("DistanceX", 0, 2, -1, 1, 11.168245),
])
pad11 = body11.newObject("PartDesign::Pad", "Pad010")
pad11.Profile = sketch11
pad11.Length = Q("0.05 in")
body12 = doc.addObject("PartDesign::Body", "Body011")

# Sketch on XZ plane
sketch12 = body12.newObject("Sketcher::SketchObject", "Sketch011")
sketch12.AttachmentSupport = (doc.getObject("XZ_Plane011"), [""])
sketch12.MapMode = "FlatFace"
add_polygon(sketch12, [(3.49, 0.13), (3.39, 0.03), (3.39, -0.54), (3.49, -0.63), (4.05, -0.63), (4.15, -0.54), (4.15, 0.03), (4.05, 0.13)])  # lines 0-7
sketch12.addConstraint([
    Sketcher.Constraint("Vertical", 1),
    Sketcher.Constraint("Horizontal", 3),
    Sketcher.Constraint("Vertical", 5),
    Sketcher.Constraint("Horizontal", 7),
    Sketcher.Constraint("Horizontal", 1, 2, 4, 2),
    Sketcher.Constraint("Horizontal", 0, 2, 5, 2),
    Sketcher.Constraint("Vertical", 3, 2, 6, 2),
    Sketcher.Constraint("Vertical", 2, 2, 7, 2),
    Sketcher.Constraint("Equal", 7, 1),
    Sketcher.Constraint("Angle", 6, Q("135 deg")),
    Sketcher.Constraint("DistanceX", -1, 1, 4, 2, 4.1509),
    Sketcher.Constraint("Distance", 4, 0.136129),
    Sketcher.Constraint("Distance", 6, 0.13739),
    Sketcher.Constraint("DistanceX", 3, 1, 3, 2, 0.563033),
    Sketcher.Constraint("DistanceY", 1, 2, -1, 1, 0.535149),
    Sketcher.Constraint("Distance", 0, 0.137413),
])
pad12 = body12.newObject("PartDesign::Pad", "Pad011")
pad12.Profile = sketch12
pad12.Length = Q("0.05 in")
body.AllowCompound = True
doc.recompute()

boolean = body.newObject("PartDesign::Boolean", "Boolean")
boolean.Type = "Fuse"
boolean.addObjects([body2])
doc.recompute()

boolean2 = body.newObject("PartDesign::Boolean", "Boolean001")
boolean2.Type = "Fuse"
boolean2.addObjects([body3])
doc.recompute()

boolean3 = body.newObject("PartDesign::Boolean", "Boolean002")
boolean3.Type = "Fuse"
boolean3.addObjects([body4])
doc.recompute()

boolean4 = body.newObject("PartDesign::Boolean", "Boolean003")
boolean4.Type = "Fuse"
boolean4.addObjects([body5])
doc.recompute()

boolean5 = body.newObject("PartDesign::Boolean", "Boolean004")
boolean5.Type = "Fuse"
boolean5.addObjects([body6])
doc.recompute()

boolean6 = body.newObject("PartDesign::Boolean", "Boolean005")
boolean6.Type = "Fuse"
boolean6.addObjects([body7])
doc.recompute()

boolean7 = body.newObject("PartDesign::Boolean", "Boolean006")
boolean7.Type = "Fuse"
boolean7.addObjects([body8])
doc.recompute()

boolean8 = body.newObject("PartDesign::Boolean", "Boolean007")
boolean8.Type = "Fuse"
boolean8.addObjects([body9])
doc.recompute()

boolean9 = body.newObject("PartDesign::Boolean", "Boolean008")
boolean9.Type = "Fuse"
boolean9.addObjects([body10])
doc.recompute()

boolean10 = body.newObject("PartDesign::Boolean", "Boolean009")
boolean10.Type = "Fuse"
boolean10.addObjects([body11])
doc.recompute()

boolean11 = body.newObject("PartDesign::Boolean", "Boolean010")
boolean11.Type = "Fuse"
boolean11.addObjects([body12])

# Sketch on XZ plane
sketch13 = body.newObject("Sketcher::SketchObject", "Sketch012")
sketch13.AttachmentSupport = (doc.getObject("XZ_Plane"), [""])
sketch13.MapMode = "FlatFace"
add_polygon(sketch13, [(-15.7, 0), (-15.7, -0.5), (15.7, -0.5), (15.7, 0)])  # lines 0-3
sketch13.addConstraint([
    Sketcher.Constraint("Vertical", 0),
    Sketcher.Constraint("Horizontal", 1),
    Sketcher.Constraint("Vertical", 2),
    Sketcher.Constraint("Horizontal", 3),
    Sketcher.Constraint("PointOnObject", 2, 2, -1),
    Sketcher.Constraint("DistanceY", 0, 2, 0, 1, Q("0.02 in")),
    Sketcher.Constraint("DistanceX", 1, 1, 1, 2, Q("1.235 in")),
    Sketcher.Constraint("DistanceX", 0, 2, -1, 1, 15.697035),
])
pad13 = body.newObject("PartDesign::Pad", "Pad012")
pad13.Profile = sketch13
pad13.Length = Q("0.02 in")

doc.recompute()
